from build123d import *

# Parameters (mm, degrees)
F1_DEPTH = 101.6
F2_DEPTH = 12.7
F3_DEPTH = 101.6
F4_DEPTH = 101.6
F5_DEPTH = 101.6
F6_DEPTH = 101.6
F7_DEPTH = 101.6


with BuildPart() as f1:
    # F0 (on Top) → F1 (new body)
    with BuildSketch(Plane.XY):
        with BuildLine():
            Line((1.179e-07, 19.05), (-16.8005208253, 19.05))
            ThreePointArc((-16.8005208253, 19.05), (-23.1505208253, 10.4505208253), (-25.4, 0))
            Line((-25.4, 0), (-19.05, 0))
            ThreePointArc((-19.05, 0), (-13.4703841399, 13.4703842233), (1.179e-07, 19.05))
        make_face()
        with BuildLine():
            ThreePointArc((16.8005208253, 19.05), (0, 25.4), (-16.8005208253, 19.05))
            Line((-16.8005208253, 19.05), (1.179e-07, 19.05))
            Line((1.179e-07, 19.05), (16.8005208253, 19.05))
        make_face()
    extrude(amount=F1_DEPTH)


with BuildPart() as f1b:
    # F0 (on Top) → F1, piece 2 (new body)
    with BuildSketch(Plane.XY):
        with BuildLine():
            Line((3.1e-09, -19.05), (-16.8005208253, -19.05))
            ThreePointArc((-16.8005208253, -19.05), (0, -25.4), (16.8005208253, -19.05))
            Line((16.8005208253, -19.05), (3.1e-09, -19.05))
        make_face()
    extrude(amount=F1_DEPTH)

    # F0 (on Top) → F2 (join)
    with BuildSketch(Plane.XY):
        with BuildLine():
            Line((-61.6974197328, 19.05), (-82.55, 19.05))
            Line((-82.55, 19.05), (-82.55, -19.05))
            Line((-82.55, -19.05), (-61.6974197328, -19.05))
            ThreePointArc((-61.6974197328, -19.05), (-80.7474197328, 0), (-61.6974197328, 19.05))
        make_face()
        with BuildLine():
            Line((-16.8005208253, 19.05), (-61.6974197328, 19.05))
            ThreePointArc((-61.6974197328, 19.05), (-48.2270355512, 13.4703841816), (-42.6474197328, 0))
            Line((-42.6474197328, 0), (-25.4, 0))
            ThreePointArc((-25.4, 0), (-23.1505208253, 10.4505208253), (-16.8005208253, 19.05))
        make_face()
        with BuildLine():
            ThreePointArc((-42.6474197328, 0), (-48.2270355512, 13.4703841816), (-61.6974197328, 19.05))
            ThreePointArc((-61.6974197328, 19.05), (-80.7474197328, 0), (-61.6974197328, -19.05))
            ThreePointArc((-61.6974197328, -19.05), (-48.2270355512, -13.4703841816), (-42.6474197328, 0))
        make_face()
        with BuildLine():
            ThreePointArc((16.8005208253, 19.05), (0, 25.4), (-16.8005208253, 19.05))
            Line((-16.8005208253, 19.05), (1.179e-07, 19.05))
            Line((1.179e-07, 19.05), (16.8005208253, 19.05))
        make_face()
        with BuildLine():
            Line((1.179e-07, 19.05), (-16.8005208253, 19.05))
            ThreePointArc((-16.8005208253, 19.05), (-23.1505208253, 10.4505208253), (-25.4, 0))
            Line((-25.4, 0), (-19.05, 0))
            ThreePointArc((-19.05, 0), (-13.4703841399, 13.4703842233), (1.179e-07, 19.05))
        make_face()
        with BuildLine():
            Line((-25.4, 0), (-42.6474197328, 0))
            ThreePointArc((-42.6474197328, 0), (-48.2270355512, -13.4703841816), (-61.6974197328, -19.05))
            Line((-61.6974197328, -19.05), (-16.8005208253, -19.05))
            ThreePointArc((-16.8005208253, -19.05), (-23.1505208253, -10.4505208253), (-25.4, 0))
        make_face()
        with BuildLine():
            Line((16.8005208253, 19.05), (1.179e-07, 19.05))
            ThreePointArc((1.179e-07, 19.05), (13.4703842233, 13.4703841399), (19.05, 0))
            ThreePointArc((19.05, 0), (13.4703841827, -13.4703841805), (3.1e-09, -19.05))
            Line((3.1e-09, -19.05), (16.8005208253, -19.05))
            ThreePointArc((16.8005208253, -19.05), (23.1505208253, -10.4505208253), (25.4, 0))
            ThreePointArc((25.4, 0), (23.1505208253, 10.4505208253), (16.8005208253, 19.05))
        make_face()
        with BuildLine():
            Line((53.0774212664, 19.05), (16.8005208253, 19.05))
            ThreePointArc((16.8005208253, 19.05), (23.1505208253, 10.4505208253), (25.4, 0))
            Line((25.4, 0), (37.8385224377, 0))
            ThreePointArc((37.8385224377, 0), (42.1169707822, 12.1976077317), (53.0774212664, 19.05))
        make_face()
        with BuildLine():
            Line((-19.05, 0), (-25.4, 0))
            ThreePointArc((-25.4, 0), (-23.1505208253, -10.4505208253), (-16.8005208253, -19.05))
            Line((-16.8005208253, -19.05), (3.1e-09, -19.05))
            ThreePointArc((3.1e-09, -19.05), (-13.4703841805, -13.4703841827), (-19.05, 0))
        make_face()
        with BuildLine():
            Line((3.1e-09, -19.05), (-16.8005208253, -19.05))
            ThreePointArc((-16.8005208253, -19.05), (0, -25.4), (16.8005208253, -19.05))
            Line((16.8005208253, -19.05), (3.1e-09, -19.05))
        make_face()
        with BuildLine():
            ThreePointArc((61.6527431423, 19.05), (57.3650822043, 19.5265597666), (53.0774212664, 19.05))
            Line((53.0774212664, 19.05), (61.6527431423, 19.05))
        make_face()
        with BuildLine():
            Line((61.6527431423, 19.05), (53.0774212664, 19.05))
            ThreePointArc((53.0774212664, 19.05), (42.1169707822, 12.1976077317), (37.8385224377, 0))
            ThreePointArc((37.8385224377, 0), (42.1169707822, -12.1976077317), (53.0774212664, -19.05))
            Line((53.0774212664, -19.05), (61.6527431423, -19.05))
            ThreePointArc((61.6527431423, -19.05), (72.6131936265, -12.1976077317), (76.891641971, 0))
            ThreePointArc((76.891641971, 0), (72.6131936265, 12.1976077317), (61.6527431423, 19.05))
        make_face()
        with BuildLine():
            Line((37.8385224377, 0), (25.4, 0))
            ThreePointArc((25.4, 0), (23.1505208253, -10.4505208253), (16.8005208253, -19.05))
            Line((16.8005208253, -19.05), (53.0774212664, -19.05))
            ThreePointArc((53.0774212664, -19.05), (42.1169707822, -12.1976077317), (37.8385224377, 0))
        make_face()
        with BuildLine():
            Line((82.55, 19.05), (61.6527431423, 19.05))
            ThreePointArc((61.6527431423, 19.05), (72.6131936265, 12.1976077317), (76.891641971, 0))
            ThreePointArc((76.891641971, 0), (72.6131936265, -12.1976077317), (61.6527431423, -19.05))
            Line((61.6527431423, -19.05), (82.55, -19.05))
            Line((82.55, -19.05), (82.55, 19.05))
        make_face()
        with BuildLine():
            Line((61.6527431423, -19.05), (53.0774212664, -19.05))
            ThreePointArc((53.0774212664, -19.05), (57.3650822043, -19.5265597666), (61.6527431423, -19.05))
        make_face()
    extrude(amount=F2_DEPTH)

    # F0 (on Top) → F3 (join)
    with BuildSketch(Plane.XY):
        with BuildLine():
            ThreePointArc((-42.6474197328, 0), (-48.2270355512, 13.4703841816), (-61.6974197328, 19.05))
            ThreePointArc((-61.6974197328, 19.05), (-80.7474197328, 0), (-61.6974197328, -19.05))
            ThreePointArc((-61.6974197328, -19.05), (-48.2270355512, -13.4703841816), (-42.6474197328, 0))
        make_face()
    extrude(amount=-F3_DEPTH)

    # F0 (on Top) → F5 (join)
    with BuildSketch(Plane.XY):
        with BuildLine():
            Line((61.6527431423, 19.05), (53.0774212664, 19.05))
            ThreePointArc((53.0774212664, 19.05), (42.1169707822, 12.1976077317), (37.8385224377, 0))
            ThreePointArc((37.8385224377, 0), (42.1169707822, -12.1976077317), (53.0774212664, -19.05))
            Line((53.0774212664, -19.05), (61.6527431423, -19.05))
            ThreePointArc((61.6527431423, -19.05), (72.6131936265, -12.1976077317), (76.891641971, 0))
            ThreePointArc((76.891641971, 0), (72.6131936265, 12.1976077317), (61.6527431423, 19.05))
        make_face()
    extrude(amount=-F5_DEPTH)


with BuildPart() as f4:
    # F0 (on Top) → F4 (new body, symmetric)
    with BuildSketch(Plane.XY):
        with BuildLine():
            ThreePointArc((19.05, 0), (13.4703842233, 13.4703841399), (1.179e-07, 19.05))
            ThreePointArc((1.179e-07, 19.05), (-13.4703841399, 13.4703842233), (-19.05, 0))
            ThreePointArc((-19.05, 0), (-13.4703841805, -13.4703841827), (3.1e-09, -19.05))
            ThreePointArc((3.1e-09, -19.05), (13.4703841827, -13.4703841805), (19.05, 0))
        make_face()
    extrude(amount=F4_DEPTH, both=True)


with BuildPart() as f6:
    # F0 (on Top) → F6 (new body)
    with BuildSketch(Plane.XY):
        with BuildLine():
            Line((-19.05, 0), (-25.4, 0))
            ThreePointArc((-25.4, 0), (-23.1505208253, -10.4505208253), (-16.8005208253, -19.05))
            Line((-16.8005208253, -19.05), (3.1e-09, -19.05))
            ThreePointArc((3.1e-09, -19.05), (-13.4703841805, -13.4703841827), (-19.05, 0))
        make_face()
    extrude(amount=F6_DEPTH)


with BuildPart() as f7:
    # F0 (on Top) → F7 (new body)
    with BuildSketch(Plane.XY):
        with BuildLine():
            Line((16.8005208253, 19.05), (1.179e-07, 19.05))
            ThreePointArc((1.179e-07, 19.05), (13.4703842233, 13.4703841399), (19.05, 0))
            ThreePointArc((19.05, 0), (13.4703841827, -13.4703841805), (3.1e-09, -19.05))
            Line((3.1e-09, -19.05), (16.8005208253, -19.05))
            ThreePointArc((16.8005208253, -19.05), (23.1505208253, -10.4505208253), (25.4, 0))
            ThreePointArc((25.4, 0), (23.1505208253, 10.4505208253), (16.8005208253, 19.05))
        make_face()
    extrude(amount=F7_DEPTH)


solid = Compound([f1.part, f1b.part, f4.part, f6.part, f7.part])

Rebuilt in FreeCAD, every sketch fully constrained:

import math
import FreeCAD as App
import Part
import Sketcher
Q = App.Units.Quantity

doc = App.newDocument("Part")
body = doc.addObject("PartDesign::Body", "Body")

# Sketch on XY plane
sketch1 = body.newObject("Sketcher::SketchObject", "Sketch")
sketch1.AttachmentSupport = (doc.getObject("XY_Plane"), [""])
sketch1.MapMode = "FlatFace"
sketch1.addGeometry([
    Part.ArcOfCircle(Part.Circle(App.Vector(0, 0, 0), App.Vector(0, 0, 1), 25), math.radians(131), math.radians(180)),  # 0
    Part.LineSegment(App.Vector(-25, 0, 0), App.Vector(-19, 0, 0)),  # 1
    Part.ArcOfCircle(Part.Circle(App.Vector(0, 0, 0), App.Vector(0, 0, 1), 19), math.radians(90), math.radians(180)),  # 2
    Part.LineSegment(App.Vector(0, 19, 0), App.Vector(17, 19, 0)),  # 3
    Part.ArcOfCircle(Part.Circle(App.Vector(0, 0, 0), App.Vector(0, 0, 1), 25), math.radians(49), math.radians(131)),  # 4
], False)
sketch1.addConstraint([
    Sketcher.Constraint("Coincident", 0, 2, 1, 1),
    Sketcher.Constraint("Coincident", 1, 2, 2, 2),
    Sketcher.Constraint("Tangent", 2, 1, 3, 1),
    Sketcher.Constraint("Coincident", 3, 2, 4, 1),
    Sketcher.Constraint("Tangent", 4, 2, 0, 1),
    Sketcher.Constraint("Horizontal", 1),
    Sketcher.Constraint("Horizontal", 3),
    Sketcher.Constraint("Coincident", 0, 3, -1, 1),
    Sketcher.Constraint("Coincident", 2, 3, -1, 1),
    Sketcher.Constraint("Equal", 0, 4),
    Sketcher.Constraint("PointOnObject", 0, 2, -1),
    Sketcher.Constraint("Horizontal", 3, 2, 4, 2),
    Sketcher.Constraint("Radius", 0, Q("1 in")),
    Sketcher.Constraint("Radius", 2, Q("0.75 in")),
])
pad1 = body.newObject("PartDesign::Pad", "Pad")
pad1.Profile = sketch1
pad1.Length = Q("4 in")
body2 = doc.addObject("PartDesign::Body", "Body001")

# Sketch on XY plane
sketch2 = body2.newObject("Sketcher::SketchObject", "Sketch001")
sketch2.AttachmentSupport = (doc.getObject("XY_Plane001"), [""])
sketch2.MapMode = "FlatFace"
sketch2.addGeometry([
    Part.ArcOfCircle(Part.Circle(App.Vector(0, 0, 0), App.Vector(0, 0, 1), 25), math.radians(-131), math.radians(-49)),
    Part.LineSegment(App.Vector(17, -19, 0), App.Vector(-17, -19, 0)),
], False)
sketch2.addConstraint([
    Sketcher.Constraint("Coincident", 0, 1, 1, 2),
    Sketcher.Constraint("Coincident", 1, 1, 0, 2),
    Sketcher.Constraint("Horizontal", 1),
    Sketcher.Constraint("Coincident", 0, 3, -1, 1),
    Sketcher.Constraint("Radius", 0, Q("1 in")),
    Sketcher.Constraint("DistanceY", 0, 1, -1, 1, Q("0.75 in")),
])
pad2 = body2.newObject("PartDesign::Pad", "Pad001")
pad2.Profile = sketch2
pad2.Length = Q("4 in")

# Sketch on XY plane
sketch3 = body2.newObject("Sketcher::SketchObject", "Sketch002")
sketch3.AttachmentSupport = (doc.getObject("XY_Plane001"), [""])
sketch3.MapMode = "FlatFace"
sketch3.addGeometry([
    Part.LineSegment(App.Vector(-83, -19, 0), App.Vector(-17, -19, 0)),  # 0
    Part.ArcOfCircle(Part.Circle(App.Vector(0, 0, 0), App.Vector(0, 0, 1), 25), math.radians(-131), math.radians(-49)),  # 1
    Part.LineSegment(App.Vector(17, -19, 0), App.Vector(53, -19, 0)),  # 2
    Part.ArcOfCircle(Part.Circle(App.Vector(57, 0, 0), App.Vector(0, 0, 1), 20), math.radians(-103), math.radians(-77)),  # 3
    Part.LineSegment(App.Vector(62, -19, 0), App.Vector(83, -19, 0)),  # 4
    Part.LineSegment(App.Vector(83, -19, 0), App.Vector(83, 19, 0)),  # 5
    Part.LineSegment(App.Vector(83, 19, 0), App.Vector(62, 19, 0)),  # 6
    Part.ArcOfCircle(Part.Circle(App.Vector(57, 0, 0), App.Vector(0, 0, 1), 20), math.radians(77), math.radians(103)),  # 7
    Part.LineSegment(App.Vector(53, 19, 0), App.Vector(17, 19, 0)),  # 8
    Part.ArcOfCircle(Part.Circle(App.Vector(0, 0, 0), App.Vector(0, 0, 1), 25), math.radians(49), math.radians(131)),  # 9
    Part.LineSegment(App.Vector(-17, 19, 0), App.Vector(-83, 19, 0)),  # 10
    Part.LineSegment(App.Vector(-83, 19, 0), App.Vector(-83, -19, 0)),  # 11
    Part.ArcOfCircle(Part.Circle(App.Vector(0, 0, 0), App.Vector(0, 0, 1), 19), math.radians(-90), math.radians(0)),  # 12
    Part.ArcOfCircle(Part.Circle(App.Vector(0, 0, 0), App.Vector(0, 0, 1), 19), math.radians(180), math.radians(270)),  # 13
    Part.ArcOfCircle(Part.Circle(App.Vector(0, 0, 0), App.Vector(0, 0, 1), 19), math.radians(90), math.radians(180)),  # 14
    Part.ArcOfCircle(Part.Circle(App.Vector(0, 0, 0), App.Vector(0, 0, 1), 19), math.radians(0), math.radians(90)),  # 15
], False)
sketch3.addConstraint([
    Sketcher.Constraint("Coincident", 0, 2, 1, 1),
    Sketcher.Constraint("Coincident", 1, 2, 2, 1),
    Sketcher.Constraint("Coincident", 2, 2, 3, 1),
    Sketcher.Constraint("Coincident", 3, 2, 4, 1),
    Sketcher.Constraint("Coincident", 4, 2, 5, 1),
    Sketcher.Constraint("Coincident", 5, 2, 6, 1),
    Sketcher.Constraint("Coincident", 6, 2, 7, 1),
    Sketcher.Constraint("Coincident", 7, 2, 8, 1),
    Sketcher.Constraint("Coincident", 8, 2, 9, 1),
    Sketcher.Constraint("Coincident", 9, 2, 10, 1),
    Sketcher.Constraint("Coincident", 10, 2, 11, 1),
    Sketcher.Constraint("Coincident", 11, 2, 0, 1),
    Sketcher.Constraint("Tangent", 12, 1, 13, 2),
    Sketcher.Constraint("Tangent", 13, 1, 14, 2),
    Sketcher.Constraint("Tangent", 14, 1, 15, 2),
    Sketcher.Constraint("Tangent", 15, 1, 12, 2),
    Sketcher.Constraint("Horizontal", 0),
    Sketcher.Constraint("Horizontal", 2),
    Sketcher.Constraint("Horizontal", 4),
    Sketcher.Constraint("Vertical", 5),
    Sketcher.Constraint("Horizontal", 6),
    Sketcher.Constraint("Horizontal", 8),
    Sketcher.Constraint("Horizontal", 10),
    Sketcher.Constraint("Vertical", 11),
    Sketcher.Constraint("Coincident", 1, 3, -1, 1),
    Sketcher.Constraint("Coincident", 9, 3, -1, 1),
    Sketcher.Constraint("Coincident", 12, 3, -1, 1),
    Sketcher.Constraint("Coincident", 7, 3, 3, 3),
    Sketcher.Constraint("Equal", 3, 7),
    Sketcher.Constraint("Equal", 1, 9),
    Sketcher.Constraint("Equal", 12, 13),
    Sketcher.Constraint("Symmetric", 4, 2, 10, 2, -1, 1),
    Sketcher.Constraint("Symmetric", 3, 2, 6, 2, -1),
    Sketcher.Constraint("PointOnObject", 12, 1, -2),
    Sketcher.Constraint("PointOnObject", 13, 1, -1),
    Sketcher.Constraint("PointOnObject", 14, 1, -2),
    Sketcher.Constraint("PointOnObject", 15, 1, -1),
    Sketcher.Constraint("Horizontal", 0, 2, 1, 2),
    Sketcher.Constraint("Horizontal", 2, 2, 3, 2),
    Sketcher.Constraint("Horizontal", 6, 2, 7, 2),
    Sketcher.Constraint("Horizontal", 11, 2, 12, 1),
    Sketcher.Constraint("Radius", 1, Q("1 in")),
    Sketcher.Constraint("Radius", 12, Q("0.75 in")),
    Sketcher.Constraint("DistanceX", -1, 1, 4, 2, Q("3.25 in")),
    Sketcher.Constraint("Radius", 3, Q("19.52656 mm")),
    Sketcher.Constraint("DistanceX", 2, 1, 2, 2, Q("36.2769 mm")),
])
pad3 = body2.newObject("PartDesign::Pad", "Pad002")
pad3.Profile = sketch3
pad3.Length = Q("0.5 in")

# Sketch on XY plane
sketch4 = body2.newObject("Sketcher::SketchObject", "Sketch003")
sketch4.AttachmentSupport = (doc.getObject("XY_Plane001"), [""])
sketch4.MapMode = "FlatFace"
sketch4.addGeometry(Part.Circle(App.Vector(-62, 0, 0), App.Vector(0, 0, 1), 19), False)
sketch4.addConstraint([
    Sketcher.Constraint("PointOnObject", 0, 3, -1),
    Sketcher.Constraint("Diameter", 0, Q("1.5 in")),
    Sketcher.Constraint("DistanceX", 0, 3, -1, 1, Q("61.69742 mm")),
])
pad4 = body2.newObject("PartDesign::Pad", "Pad003")
pad4.Profile = sketch4
pad4.Length = Q("4 in")
pad4.Reversed = True

# Sketch on XY plane
sketch5 = body2.newObject("Sketcher::SketchObject", "Sketch004")
sketch5.AttachmentSupport = (doc.getObject("XY_Plane001"), [""])
sketch5.MapMode = "FlatFace"
sketch5.addGeometry([
    Part.LineSegment(App.Vector(62, 19, 0), App.Vector(53, 19, 0)),  # 0
    Part.ArcOfCircle(Part.Circle(App.Vector(57, 0, 0), App.Vector(0, 0, 1), 20), math.radians(103), math.radians(180)),  # 1
    Part.ArcOfCircle(Part.Circle(App.Vector(57, 0, 0), App.Vector(0, 0, 1), 20), math.radians(180), math.radians(257)),  # 2
    Part.LineSegment(App.Vector(53, -19, 0), App.Vector(62, -19, 0)),  # 3
    Part.ArcOfCircle(Part.Circle(App.Vector(57, 0, 0), App.Vector(0, 0, 1), 20), math.radians(-77), math.radians(0)),  # 4
    Part.ArcOfCircle(Part.Circle(App.Vector(57, 0, 0), App.Vector(0, 0, 1), 20), math.radians(0), math.radians(77)),  # 5
], False)
sketch5.addConstraint([
    Sketcher.Constraint("Coincident", 0, 2, 1, 1),
    Sketcher.Constraint("Tangent", 1, 2, 2, 1),
    Sketcher.Constraint("Coincident", 2, 2, 3, 1),
    Sketcher.Constraint("Coincident", 3, 2, 4, 1),
    Sketcher.Constraint("Tangent", 4, 2, 5, 1),
    Sketcher.Constraint("Coincident", 5, 2, 0, 1),
    Sketcher.Constraint("Horizontal", 0),
    Sketcher.Constraint("Horizontal", 3),
    Sketcher.Constraint("Coincident", 4, 3, 1, 3),
    Sketcher.Constraint("Equal", 1, 2),
    Sketcher.Constraint("Equal", 2, 4),
    Sketcher.Constraint("Equal", 4, 5),
    Sketcher.Constraint("Symmetric", 0, 2, 2, 2, -1),
    Sketcher.Constraint("PointOnObject", 1, 2, -1),
    Sketcher.Constraint("PointOnObject", 4, 2, -1),
    Sketcher.Constraint("DistanceY", -1, 1, 0, 2, Q("0.75 in")),
    Sketcher.Constraint("Radius", 1, Q("19.52656 mm")),
    Sketcher.Constraint("DistanceX", -1, 1, 0, 2, Q("53.077421 mm")),
])
pad5 = body2.newObject("PartDesign::Pad", "Pad004")
pad5.Profile = sketch5
pad5.Length = Q("4 in")
pad5.Reversed = True
body3 = doc.addObject("PartDesign::Body", "Body002")

# Sketch on XY plane
sketch6 = body3.newObject("Sketcher::SketchObject", "Sketch005")
sketch6.AttachmentSupport = (doc.getObject("XY_Plane002"), [""])
sketch6.MapMode = "FlatFace"
sketch6.addGeometry([
    Part.ArcOfCircle(Part.Circle(App.Vector(0, 0, 0), App.Vector(0, 0, 1), 19), math.radians(0), math.radians(90)),
    Part.ArcOfCircle(Part.Circle(App.Vector(0, 0, 0), App.Vector(0, 0, 1), 19), math.radians(90), math.radians(180)),
    Part.ArcOfCircle(Part.Circle(App.Vector(0, 0, 0), App.Vector(0, 0, 1), 19), math.radians(180), math.radians(270)),
    Part.ArcOfCircle(Part.Circle(App.Vector(0, 0, 0), App.Vector(0, 0, 1), 19), math.radians(-90), math.radians(0)),
], False)
sketch6.addConstraint([
    Sketcher.Constraint("Tangent", 0, 2, 1, 1),
    Sketcher.Constraint("Tangent", 1, 2, 2, 1),
    Sketcher.Constraint("Tangent", 2, 2, 3, 1),
    Sketcher.Constraint("Tangent", 3, 2, 0, 1),
    Sketcher.Constraint("Coincident", 0, 3, -1, 1),
    Sketcher.Constraint("Equal", 0, 1),
    Sketcher.Constraint("PointOnObject", 0, 2, -2),
    Sketcher.Constraint("PointOnObject", 1, 2, -1),
    Sketcher.Constraint("PointOnObject", 2, 2, -2),
    Sketcher.Constraint("PointOnObject", 3, 2, -1),
    Sketcher.Constraint("Radius", 0, Q("0.75 in")),
])
pad6 = body3.newObject("PartDesign::Pad", "Pad005")
pad6.Profile = sketch6
pad6.Length = Q("8 in")
pad6.Midplane = True
body4 = doc.addObject("PartDesign::Body", "Body003")

# Sketch on XY plane
sketch7 = body4.newObject("Sketcher::SketchObject", "Sketch006")
sketch7.AttachmentSupport = (doc.getObject("XY_Plane003"), [""])
sketch7.MapMode = "FlatFace"
sketch7.addGeometry([
    Part.LineSegment(App.Vector(-19, 0, 0), App.Vector(-25, 0, 0)),
    Part.ArcOfCircle(Part.Circle(App.Vector(0, 0, 0), App.Vector(0, 0, 1), 25), math.radians(180), math.radians(229)),
    Part.LineSegment(App.Vector(-17, -19, 0), App.Vector(0, -19, 0)),
    Part.ArcOfCircle(Part.Circle(App.Vector(0, 0, 0), App.Vector(0, 0, 1), 19), math.radians(180), math.radians(270)),
], False)
sketch7.addConstraint([
    Sketcher.Constraint("Coincident", 0, 2, 1, 1),
    Sketcher.Constraint("Coincident", 1, 2, 2, 1),
    Sketcher.Constraint("Tangent", 2, 2, 3, 2),
    Sketcher.Constraint("Coincident", 3, 1, 0, 1),
    Sketcher.Constraint("Horizontal", 0),
    Sketcher.Constraint("Horizontal", 2),
    Sketcher.Constraint("Coincident", 1, 3, -1, 1),
    Sketcher.Constraint("Coincident", 3, 3, -1, 1),
    Sketcher.Constraint("PointOnObject", 0, 2, -1),
    Sketcher.Constraint("Radius", 1, Q("1 in")),
    Sketcher.Constraint("Radius", 3, Q("0.75 in")),
])
pad7 = body4.newObject("PartDesign::Pad", "Pad006")
pad7.Profile = sketch7
pad7.Length = Q("4 in")
body5 = doc.addObject("PartDesign::Body", "Body004")

# Sketch on XY plane
sketch8 = body5.newObject("Sketcher::SketchObject", "Sketch007")
sketch8.AttachmentSupport = (doc.getObject("XY_Plane004"), [""])
sketch8.MapMode = "FlatFace"
sketch8.addGeometry([
    Part.LineSegment(App.Vector(17, 19, 0), App.Vector(0, 19, 0)),  # 0
    Part.ArcOfCircle(Part.Circle(App.Vector(0, 0, 0), App.Vector(0, 0, 1), 19), math.radians(0), math.radians(90)),  # 1
    Part.ArcOfCircle(Part.Circle(App.Vector(0, 0, 0), App.Vector(0, 0, 1), 19), math.radians(-90), math.radians(0)),  # 2
    Part.LineSegment(App.Vector(0, -19, 0), App.Vector(17, -19, 0)),  # 3
    Part.ArcOfCircle(Part.Circle(App.Vector(0, 0, 0), App.Vector(0, 0, 1), 25), math.radians(-49), math.radians(0)),  # 4
    Part.ArcOfCircle(Part.Circle(App.Vector(0, 0, 0), App.Vector(0, 0, 1), 25), math.radians(0), math.radians(49)),  # 5
], False)
sketch8.addConstraint([
    Sketcher.Constraint("Tangent", 0, 2, 1, 2),
    Sketcher.Constraint("Tangent", 1, 1, 2, 2),
    Sketcher.Constraint("Tangent", 2, 1, 3, 1),
    Sketcher.Constraint("Coincident", 3, 2, 4, 1),
    Sketcher.Constraint("Tangent", 4, 2, 5, 1),
    Sketcher.Constraint("Coincident", 5, 2, 0, 1),
    Sketcher.Constraint("Horizontal", 0),
    Sketcher.Constraint("Horizontal", 3),
    Sketcher.Constraint("Coincident", 1, 3, -1, 1),
    Sketcher.Constraint("Coincident", 4, 3, -1, 1),
    Sketcher.Constraint("Equal", 1, 2),
    Sketcher.Constraint("Equal", 4, 5),
    Sketcher.Constraint("PointOnObject", 1, 1, -1),
    Sketcher.Constraint("PointOnObject", 4, 2, -1),
    Sketcher.Constraint("Radius", 4, Q("1 in")),
    Sketcher.Constraint("Radius", 1, Q("0.75 in")),
])
pad8 = body5.newObject("PartDesign::Pad", "Pad007")
pad8.Profile = sketch8
pad8.Length = Q("4 in")

doc.recompute()
